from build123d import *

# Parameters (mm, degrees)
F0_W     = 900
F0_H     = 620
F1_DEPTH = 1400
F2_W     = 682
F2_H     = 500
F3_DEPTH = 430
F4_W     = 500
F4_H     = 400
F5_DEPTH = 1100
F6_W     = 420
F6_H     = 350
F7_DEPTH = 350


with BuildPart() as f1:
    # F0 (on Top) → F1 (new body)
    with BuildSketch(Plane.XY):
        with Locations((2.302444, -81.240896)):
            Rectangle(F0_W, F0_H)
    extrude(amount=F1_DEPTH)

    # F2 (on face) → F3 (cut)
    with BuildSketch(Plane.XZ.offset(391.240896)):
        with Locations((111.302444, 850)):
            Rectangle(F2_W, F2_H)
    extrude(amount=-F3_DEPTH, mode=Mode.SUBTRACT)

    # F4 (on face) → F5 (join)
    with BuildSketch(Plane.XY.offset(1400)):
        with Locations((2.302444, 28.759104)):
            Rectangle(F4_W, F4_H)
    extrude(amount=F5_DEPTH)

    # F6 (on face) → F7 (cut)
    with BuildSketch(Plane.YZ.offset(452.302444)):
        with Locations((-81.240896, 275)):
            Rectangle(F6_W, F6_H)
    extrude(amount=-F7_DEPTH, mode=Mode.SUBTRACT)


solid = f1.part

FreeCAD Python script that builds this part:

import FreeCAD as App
import Part
import Sketcher

V = App.Vector
Q = App.Units.Quantity

doc = App.newDocument("Part")
body = doc.addObject("PartDesign::Body", "Body")

# Sketch on XY plane
sketch1 = body.newObject("Sketcher::SketchObject", "Sketch")
sketch1.AttachmentSupport = (doc.getObject("XY_Plane"), [""])
sketch1.MapMode = "FlatFace"
sketch1.addGeometry([
    Part.LineSegment(V(-448, 229, 0), V(-448, -391, 0)),
    Part.LineSegment(V(-448, -391, 0), V(452, -391, 0)),
    Part.LineSegment(V(452, -391, 0), V(452, 229, 0)),
    Part.LineSegment(V(452, 229, 0), V(-448, 229, 0)),
], False)
sketch1.addConstraint([
    Sketcher.Constraint("Coincident", 0, 2, 1, 1),
    Sketcher.Constraint("Coincident", 1, 2, 2, 1),
    Sketcher.Constraint("Coincident", 2, 2, 3, 1),
    Sketcher.Constraint("Coincident", 3, 2, 0, 1),
    Sketcher.Constraint("Vertical", 0),
    Sketcher.Constraint("Horizontal", 1),
    Sketcher.Constraint("Vertical", 2),
    Sketcher.Constraint("Horizontal", 3),
    Sketcher.Constraint("DistanceX", 1, 1, 1, 2, Q("900 mm")),
    Sketcher.Constraint("DistanceY", 0, 2, 0, 1, Q("620 mm")),
    Sketcher.Constraint("DistanceX", 0, 2, -1, 1, Q("447.697556 mm")),
    Sketcher.Constraint("DistanceY", 0, 2, -1, 1, Q("391.240896 mm")),
])
pad1 = body.newObject("PartDesign::Pad", "Pad")
pad1.Profile = sketch1
pad1.Length = 1400

# Sketch on XZ plane
sketch2 = body.newObject("Sketcher::SketchObject", "Sketch001")
sketch2.AttachmentSupport = (doc.getObject("XZ_Plane"), [""])
sketch2.MapMode = "FlatFace"
sketch2.AttachmentOffset = App.Placement(V(0, 0, 391.240896), App.Rotation())
sketch2.addGeometry([
    Part.LineSegment(V(-230, 1100, 0), V(-230, 600, 0)),
    Part.LineSegment(V(-230, 600, 0), V(452, 600, 0)),
    Part.LineSegment(V(452, 600, 0), V(452, 1100, 0)),
    Part.LineSegment(V(452, 1100, 0), V(-230, 1100, 0)),
], False)
sketch2.addConstraint([
    Sketcher.Constraint("Coincident", 0, 2, 1, 1),
    Sketcher.Constraint("Coincident", 1, 2, 2, 1),
    Sketcher.Constraint("Coincident", 2, 2, 3, 1),
    Sketcher.Constraint("Coincident", 3, 2, 0, 1),
    Sketcher.Constraint("Vertical", 0),
    Sketcher.Constraint("Horizontal", 1),
    Sketcher.Constraint("Vertical", 2),
    Sketcher.Constraint("Horizontal", 3),
    Sketcher.Constraint("DistanceX", 1, 1, 1, 2, Q("682 mm")),
    Sketcher.Constraint("DistanceY", 0, 2, 0, 1, Q("500 mm")),
    Sketcher.Constraint("DistanceY", -1, 1, 0, 2, Q("600 mm")),
    Sketcher.Constraint("DistanceX", 0, 2, -1, 1, Q("229.697556 mm")),
])
pocket1 = body.newObject("PartDesign::Pocket", "Pocket")
pocket1.Profile = sketch2
pocket1.Length = 430

# Sketch on XY plane
sketch3 = body.newObject("Sketcher::SketchObject", "Sketch002")
sketch3.AttachmentSupport = (doc.getObject("XY_Plane"), [""])
sketch3.MapMode = "FlatFace"
sketch3.AttachmentOffset = App.Placement(V(0, 0, 1400), App.Rotation())
sketch3.addGeometry([
    Part.LineSegment(V(-248, 229, 0), V(-248, -171, 0)),
    Part.LineSegment(V(-248, -171, 0), V(252, -171, 0)),
    Part.LineSegment(V(252, -171, 0), V(252, 229, 0)),
    Part.LineSegment(V(252, 229, 0), V(-248, 229, 0)),
], False)
sketch3.addConstraint([
    Sketcher.Constraint("Coincident", 0, 2, 1, 1),
    Sketcher.Constraint("Coincident", 1, 2, 2, 1),
    Sketcher.Constraint("Coincident", 2, 2, 3, 1),
    Sketcher.Constraint("Coincident", 3, 2, 0, 1),
    Sketcher.Constraint("Vertical", 0),
    Sketcher.Constraint("Horizontal", 1),
    Sketcher.Constraint("Vertical", 2),
    Sketcher.Constraint("Horizontal", 3),
    Sketcher.Constraint("DistanceX", 1, 1, 1, 2, Q("500 mm")),
    Sketcher.Constraint("DistanceY", 0, 2, 0, 1, Q("400 mm")),
    Sketcher.Constraint("DistanceX", 0, 2, -1, 1, Q("247.697556 mm")),
    Sketcher.Constraint("DistanceY", 0, 2, -1, 1, Q("171.240896 mm")),
])
pad2 = body.newObject("PartDesign::Pad", "Pad001")
pad2.Profile = sketch3
pad2.Length = 1100

# Sketch on YZ plane
sketch4 = body.newObject("Sketcher::SketchObject", "Sketch003")
sketch4.AttachmentSupport = (doc.getObject("YZ_Plane"), [""])
sketch4.MapMode = "FlatFace"
sketch4.AttachmentOffset = App.Placement(V(0, 0, 452.302444), App.Rotation())
sketch4.addGeometry([
    Part.LineSegment(V(-291, 450, 0), V(-291, 100, 0)),
    Part.LineSegment(V(-291, 100, 0), V(129, 100, 0)),
    Part.LineSegment(V(129, 100, 0), V(129, 450, 0)),
    Part.LineSegment(V(129, 450, 0), V(-291, 450, 0)),
], False)
sketch4.addConstraint([
    Sketcher.Constraint("Coincident", 0, 2, 1, 1),
    Sketcher.Constraint("Coincident", 1, 2, 2, 1),
    Sketcher.Constraint("Coincident", 2, 2, 3, 1),
    Sketcher.Constraint("Coincident", 3, 2, 0, 1),
    Sketcher.Constraint("Vertical", 0),
    Sketcher.Constraint("Horizontal", 1),
    Sketcher.Constraint("Vertical", 2),
    Sketcher.Constraint("Horizontal", 3),
    Sketcher.Constraint("DistanceX", 1, 1, 1, 2, Q("420 mm")),
    Sketcher.Constraint("DistanceY", 0, 2, 0, 1, Q("350 mm")),
    Sketcher.Constraint("DistanceY", -1, 1, 0, 2, Q("100 mm")),
    Sketcher.Constraint("DistanceX", 0, 2, -1, 1, Q("291.240896 mm")),
])
pocket2 = body.newObject("PartDesign::Pocket", "Pocket001")
pocket2.Profile = sketch4
pocket2.Length = 350

doc.recompute()
